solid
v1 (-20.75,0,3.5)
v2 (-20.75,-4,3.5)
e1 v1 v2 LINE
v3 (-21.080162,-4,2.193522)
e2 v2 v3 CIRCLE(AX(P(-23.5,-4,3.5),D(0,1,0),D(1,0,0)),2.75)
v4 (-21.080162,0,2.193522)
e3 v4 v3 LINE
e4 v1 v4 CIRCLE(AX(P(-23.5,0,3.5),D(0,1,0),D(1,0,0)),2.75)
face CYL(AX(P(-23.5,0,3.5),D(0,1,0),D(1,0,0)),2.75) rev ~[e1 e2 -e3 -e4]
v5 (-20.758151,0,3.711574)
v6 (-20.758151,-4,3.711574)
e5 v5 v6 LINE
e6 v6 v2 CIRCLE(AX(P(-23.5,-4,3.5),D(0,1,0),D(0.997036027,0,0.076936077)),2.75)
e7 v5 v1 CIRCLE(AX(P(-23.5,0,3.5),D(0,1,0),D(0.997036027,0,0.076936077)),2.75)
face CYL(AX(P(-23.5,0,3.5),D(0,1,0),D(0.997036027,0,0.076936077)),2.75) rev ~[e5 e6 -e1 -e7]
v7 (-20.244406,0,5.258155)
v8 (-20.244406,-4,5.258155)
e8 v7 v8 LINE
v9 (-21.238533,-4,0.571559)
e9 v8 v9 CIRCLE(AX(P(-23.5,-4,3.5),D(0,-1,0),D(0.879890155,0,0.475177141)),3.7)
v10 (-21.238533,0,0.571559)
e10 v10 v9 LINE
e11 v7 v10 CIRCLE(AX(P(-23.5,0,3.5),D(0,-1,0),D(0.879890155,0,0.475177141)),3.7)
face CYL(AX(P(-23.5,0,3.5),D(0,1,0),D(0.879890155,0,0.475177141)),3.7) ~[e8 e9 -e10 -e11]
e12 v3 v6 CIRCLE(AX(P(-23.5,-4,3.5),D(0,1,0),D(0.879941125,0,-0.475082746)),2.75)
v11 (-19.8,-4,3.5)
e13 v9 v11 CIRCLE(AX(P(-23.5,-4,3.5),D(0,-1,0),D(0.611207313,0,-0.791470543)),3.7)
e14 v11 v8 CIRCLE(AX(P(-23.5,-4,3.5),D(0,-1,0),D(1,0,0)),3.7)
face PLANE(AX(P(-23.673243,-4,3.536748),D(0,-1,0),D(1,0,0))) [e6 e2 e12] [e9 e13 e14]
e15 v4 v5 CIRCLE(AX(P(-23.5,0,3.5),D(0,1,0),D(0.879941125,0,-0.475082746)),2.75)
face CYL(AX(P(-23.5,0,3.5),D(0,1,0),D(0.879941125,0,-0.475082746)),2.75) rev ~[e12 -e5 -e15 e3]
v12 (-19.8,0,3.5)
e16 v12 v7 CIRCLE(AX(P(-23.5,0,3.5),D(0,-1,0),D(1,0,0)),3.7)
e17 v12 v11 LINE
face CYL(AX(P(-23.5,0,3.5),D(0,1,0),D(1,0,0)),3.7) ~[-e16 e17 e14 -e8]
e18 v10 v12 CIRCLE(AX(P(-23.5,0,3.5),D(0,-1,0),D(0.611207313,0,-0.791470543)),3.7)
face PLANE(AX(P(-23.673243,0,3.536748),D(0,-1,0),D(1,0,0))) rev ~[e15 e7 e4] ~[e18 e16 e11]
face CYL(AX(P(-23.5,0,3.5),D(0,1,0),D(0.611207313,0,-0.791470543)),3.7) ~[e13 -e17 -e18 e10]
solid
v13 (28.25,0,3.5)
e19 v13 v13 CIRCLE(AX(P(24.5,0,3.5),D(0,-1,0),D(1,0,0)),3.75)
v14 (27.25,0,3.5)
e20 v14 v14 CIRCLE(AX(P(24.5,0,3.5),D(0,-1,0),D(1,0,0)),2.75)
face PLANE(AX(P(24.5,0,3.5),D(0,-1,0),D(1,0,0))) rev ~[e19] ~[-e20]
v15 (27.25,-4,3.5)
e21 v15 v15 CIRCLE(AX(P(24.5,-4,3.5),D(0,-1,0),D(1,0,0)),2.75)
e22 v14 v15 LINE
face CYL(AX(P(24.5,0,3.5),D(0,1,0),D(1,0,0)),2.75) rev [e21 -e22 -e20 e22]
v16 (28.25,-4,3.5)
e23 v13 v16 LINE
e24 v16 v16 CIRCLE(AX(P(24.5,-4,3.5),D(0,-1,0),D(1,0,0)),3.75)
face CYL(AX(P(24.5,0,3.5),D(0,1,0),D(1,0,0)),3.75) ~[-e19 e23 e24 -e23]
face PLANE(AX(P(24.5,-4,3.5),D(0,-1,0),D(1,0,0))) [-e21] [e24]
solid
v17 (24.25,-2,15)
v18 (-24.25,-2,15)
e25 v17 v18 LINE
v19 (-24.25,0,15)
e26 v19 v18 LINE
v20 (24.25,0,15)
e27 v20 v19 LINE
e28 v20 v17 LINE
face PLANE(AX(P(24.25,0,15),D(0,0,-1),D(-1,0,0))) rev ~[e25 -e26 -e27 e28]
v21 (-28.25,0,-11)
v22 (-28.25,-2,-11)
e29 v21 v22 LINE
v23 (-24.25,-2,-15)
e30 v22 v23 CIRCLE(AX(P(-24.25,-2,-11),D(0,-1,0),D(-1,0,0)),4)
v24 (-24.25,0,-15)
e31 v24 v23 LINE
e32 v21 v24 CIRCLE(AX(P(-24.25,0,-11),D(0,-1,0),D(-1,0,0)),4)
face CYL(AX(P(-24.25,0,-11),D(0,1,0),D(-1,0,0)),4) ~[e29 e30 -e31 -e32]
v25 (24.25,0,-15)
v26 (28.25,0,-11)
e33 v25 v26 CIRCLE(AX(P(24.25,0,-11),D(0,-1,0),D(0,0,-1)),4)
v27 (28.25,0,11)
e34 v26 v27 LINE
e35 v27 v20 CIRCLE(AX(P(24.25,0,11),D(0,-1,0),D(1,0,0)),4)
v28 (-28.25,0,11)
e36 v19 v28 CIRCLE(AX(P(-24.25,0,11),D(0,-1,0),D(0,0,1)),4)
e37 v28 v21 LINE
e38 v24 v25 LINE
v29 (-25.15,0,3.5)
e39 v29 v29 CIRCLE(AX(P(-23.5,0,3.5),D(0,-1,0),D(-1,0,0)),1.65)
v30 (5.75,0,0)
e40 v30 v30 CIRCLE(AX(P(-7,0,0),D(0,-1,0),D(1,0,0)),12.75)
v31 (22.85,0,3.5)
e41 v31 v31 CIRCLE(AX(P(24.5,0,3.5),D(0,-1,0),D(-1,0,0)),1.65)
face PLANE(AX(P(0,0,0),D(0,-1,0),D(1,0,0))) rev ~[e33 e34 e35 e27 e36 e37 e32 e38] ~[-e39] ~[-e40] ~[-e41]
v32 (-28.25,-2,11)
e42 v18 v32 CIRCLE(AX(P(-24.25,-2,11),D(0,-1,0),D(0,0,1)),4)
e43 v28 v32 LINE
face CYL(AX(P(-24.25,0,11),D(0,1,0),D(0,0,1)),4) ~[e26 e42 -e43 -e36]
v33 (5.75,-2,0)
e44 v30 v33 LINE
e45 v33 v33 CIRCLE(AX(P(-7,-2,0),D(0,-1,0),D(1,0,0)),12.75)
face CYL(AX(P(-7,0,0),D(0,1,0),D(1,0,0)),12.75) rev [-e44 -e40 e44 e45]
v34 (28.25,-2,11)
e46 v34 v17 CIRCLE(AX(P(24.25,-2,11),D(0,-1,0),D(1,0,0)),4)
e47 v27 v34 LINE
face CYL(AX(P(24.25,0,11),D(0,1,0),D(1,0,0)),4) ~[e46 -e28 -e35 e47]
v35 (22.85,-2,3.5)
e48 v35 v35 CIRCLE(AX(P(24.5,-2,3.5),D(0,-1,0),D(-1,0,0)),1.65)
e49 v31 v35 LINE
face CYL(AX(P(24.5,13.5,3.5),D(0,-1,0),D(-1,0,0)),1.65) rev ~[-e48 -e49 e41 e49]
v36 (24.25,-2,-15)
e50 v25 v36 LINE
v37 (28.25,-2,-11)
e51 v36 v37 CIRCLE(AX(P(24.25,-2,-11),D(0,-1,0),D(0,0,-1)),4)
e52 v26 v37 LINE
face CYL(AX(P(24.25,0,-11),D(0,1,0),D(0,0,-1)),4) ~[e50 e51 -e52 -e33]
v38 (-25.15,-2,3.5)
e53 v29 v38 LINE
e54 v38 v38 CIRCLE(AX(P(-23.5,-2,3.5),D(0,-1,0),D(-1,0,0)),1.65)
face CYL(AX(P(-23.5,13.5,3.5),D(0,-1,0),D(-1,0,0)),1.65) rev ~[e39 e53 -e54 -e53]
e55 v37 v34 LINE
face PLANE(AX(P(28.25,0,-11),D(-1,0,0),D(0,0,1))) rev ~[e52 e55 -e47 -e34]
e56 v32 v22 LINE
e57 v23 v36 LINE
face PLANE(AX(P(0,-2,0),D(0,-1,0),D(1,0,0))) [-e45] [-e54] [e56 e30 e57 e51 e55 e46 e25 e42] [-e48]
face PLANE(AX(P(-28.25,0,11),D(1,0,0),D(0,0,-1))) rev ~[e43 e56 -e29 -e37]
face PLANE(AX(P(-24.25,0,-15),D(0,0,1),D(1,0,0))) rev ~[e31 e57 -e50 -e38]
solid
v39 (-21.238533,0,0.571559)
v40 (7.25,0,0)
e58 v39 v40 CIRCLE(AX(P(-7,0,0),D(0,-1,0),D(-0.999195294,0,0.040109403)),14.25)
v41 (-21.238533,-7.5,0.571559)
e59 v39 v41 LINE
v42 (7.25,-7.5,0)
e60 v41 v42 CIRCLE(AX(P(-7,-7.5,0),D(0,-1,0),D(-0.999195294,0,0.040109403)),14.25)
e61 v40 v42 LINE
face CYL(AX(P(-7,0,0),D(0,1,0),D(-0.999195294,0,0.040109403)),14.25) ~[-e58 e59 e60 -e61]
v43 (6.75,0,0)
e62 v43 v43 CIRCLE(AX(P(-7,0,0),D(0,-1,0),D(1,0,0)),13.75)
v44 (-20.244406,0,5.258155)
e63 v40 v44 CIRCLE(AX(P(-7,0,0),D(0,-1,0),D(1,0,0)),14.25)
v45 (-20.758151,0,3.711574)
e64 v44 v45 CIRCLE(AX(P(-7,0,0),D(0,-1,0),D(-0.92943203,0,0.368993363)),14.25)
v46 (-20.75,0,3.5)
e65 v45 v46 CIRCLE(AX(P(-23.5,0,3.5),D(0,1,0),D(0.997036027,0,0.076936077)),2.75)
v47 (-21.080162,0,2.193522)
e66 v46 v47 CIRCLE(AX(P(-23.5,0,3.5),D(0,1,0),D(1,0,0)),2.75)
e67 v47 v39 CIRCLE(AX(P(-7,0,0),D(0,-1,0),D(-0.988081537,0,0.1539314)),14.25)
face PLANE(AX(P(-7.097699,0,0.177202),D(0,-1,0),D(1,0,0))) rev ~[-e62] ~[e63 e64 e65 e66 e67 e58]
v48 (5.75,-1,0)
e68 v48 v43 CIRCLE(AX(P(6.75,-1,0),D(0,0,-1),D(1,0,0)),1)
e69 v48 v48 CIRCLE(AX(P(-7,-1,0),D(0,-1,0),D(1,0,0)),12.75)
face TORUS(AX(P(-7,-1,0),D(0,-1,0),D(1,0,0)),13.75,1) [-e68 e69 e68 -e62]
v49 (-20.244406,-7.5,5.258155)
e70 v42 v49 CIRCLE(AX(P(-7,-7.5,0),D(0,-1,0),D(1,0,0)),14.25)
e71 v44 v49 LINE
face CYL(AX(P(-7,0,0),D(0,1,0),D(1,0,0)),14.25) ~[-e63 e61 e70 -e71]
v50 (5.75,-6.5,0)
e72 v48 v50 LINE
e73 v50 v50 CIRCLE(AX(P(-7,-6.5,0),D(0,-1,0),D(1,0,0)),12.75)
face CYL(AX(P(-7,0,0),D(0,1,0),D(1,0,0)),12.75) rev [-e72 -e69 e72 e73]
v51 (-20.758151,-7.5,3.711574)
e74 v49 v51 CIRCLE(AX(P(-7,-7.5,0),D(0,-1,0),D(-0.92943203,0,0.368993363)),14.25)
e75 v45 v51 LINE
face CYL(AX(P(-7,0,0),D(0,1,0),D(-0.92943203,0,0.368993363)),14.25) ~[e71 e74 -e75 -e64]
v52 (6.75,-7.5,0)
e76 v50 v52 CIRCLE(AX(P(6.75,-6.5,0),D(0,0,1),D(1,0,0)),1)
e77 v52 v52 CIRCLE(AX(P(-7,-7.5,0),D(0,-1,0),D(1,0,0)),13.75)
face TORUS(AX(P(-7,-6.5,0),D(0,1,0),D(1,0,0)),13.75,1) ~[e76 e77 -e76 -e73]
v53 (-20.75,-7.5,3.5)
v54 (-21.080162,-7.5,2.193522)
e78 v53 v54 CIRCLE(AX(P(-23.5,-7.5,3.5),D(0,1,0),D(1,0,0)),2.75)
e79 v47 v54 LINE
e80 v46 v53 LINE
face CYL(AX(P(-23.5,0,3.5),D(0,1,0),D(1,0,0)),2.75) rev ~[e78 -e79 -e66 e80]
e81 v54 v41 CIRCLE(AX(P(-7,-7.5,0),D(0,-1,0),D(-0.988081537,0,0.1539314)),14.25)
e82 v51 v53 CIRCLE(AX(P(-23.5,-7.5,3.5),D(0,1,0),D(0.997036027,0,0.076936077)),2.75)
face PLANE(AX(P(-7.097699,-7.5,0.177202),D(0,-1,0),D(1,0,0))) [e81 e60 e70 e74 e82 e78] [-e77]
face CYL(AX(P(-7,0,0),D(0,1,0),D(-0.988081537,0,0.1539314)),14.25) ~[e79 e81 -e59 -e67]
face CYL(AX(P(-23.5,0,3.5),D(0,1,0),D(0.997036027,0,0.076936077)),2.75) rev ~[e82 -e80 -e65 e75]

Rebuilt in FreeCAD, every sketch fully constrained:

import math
import FreeCAD as App
import Part
import Sketcher


def edges_at(feature, points):
    """Names of the edges that pass closest to the given points."""
    edges = feature.Shape.Edges
    near = lambda p: min(range(len(edges)), key=lambda i: edges[i].distToShape(Part.Vertex(*p))[0])
    return sorted({f"Edge{near(p) + 1}" for p in points})

doc = App.newDocument("Part")
body = doc.addObject("PartDesign::Body", "Body")

# Sketch on XZ plane
sketch1 = body.newObject("Sketcher::SketchObject", "Sketch")
sketch1.AttachmentSupport = (doc.getObject("XZ_Plane"), [""])
sketch1.MapMode = "FlatFace"
sketch1.addGeometry([
    Part.ArcOfCircle(Part.Circle(App.Vector(-23.5, 3.5, 0), App.Vector(0, 0, 1), 3.7), math.radians(28), math.radians(308)),  # 0
    Part.ArcOfCircle(Part.Circle(App.Vector(-23.5, 3.5, 0), App.Vector(0, 0, 1), 3.7), math.radians(-52), math.radians(0)),  # 1
    Part.ArcOfCircle(Part.Circle(App.Vector(-23.5, 3.5, 0), App.Vector(0, 0, 1), 3.7), math.radians(0), math.radians(28)),  # 2
    Part.ArcOfCircle(Part.Circle(App.Vector(-23.5, 3.5, 0), App.Vector(0, 0, 1), 2.75), math.radians(4), math.radians(332)),  # 3
    Part.ArcOfCircle(Part.Circle(App.Vector(-23.5, 3.5, 0), App.Vector(0, 0, 1), 2.75), math.radians(0), math.radians(4.41)),  # 4
    Part.ArcOfCircle(Part.Circle(App.Vector(-23.5, 3.5, 0), App.Vector(0, 0, 1), 2.75), math.radians(-28), math.radians(0)),  # 5
], False)
sketch1.addConstraint([
    Sketcher.Constraint("Tangent", 0, 2, 1, 1),
    Sketcher.Constraint("Tangent", 1, 2, 2, 1),
    Sketcher.Constraint("Tangent", 2, 2, 0, 1),
    Sketcher.Constraint("Tangent", 3, 1, 4, 2),
    Sketcher.Constraint("Tangent", 4, 1, 5, 2),
    Sketcher.Constraint("Tangent", 5, 1, 3, 2),
    Sketcher.Constraint("Coincident", 3, 3, 0, 3),
    Sketcher.Constraint("Horizontal", 5, 3, 1, 2),
    Sketcher.Constraint("Horizontal", 1, 2, 4, 1),
    Sketcher.Constraint("Radius", 0, 3.7),
    Sketcher.Constraint("Radius", 3, 2.75),
    Sketcher.Constraint("DistanceX", 0, 3, -1, 1, 23.5),
    Sketcher.Constraint("DistanceY", -1, 1, 0, 3, 3.5),
    Sketcher.Constraint("DistanceY", -1, 1, 0, 2, 0.571559),
    Sketcher.Constraint("DistanceX", 3, 1, -1, 1, 20.758151),
    Sketcher.Constraint("DistanceX", 5, 1, -1, 1, 21.080162),
    Sketcher.Constraint("DistanceY", 3, 1, 2, 2, 1.546581),
])
pad1 = body.newObject("PartDesign::Pad", "Pad")
pad1.Profile = sketch1
pad1.Length = 4
body2 = doc.addObject("PartDesign::Body", "Body001")

# Sketch on XZ plane
sketch2 = body2.newObject("Sketcher::SketchObject", "Sketch001")
sketch2.AttachmentSupport = (doc.getObject("XZ_Plane001"), [""])
sketch2.MapMode = "FlatFace"
sketch2.addGeometry([
    Part.Circle(App.Vector(24.5, 3.5, 0), App.Vector(0, 0, 1), 3.8),
    Part.Circle(App.Vector(24.5, 3.5, 0), App.Vector(0, 0, 1), 2.8),
], False)
sketch2.addConstraint([
    Sketcher.Constraint("Coincident", 1, 3, 0, 3),
    Sketcher.Constraint("Diameter", 0, 7.5),
    Sketcher.Constraint("Diameter", 1, 5.5),
    Sketcher.Constraint("DistanceX", -1, 1, 0, 3, 24.5),
    Sketcher.Constraint("DistanceY", -1, 1, 0, 3, 3.5),
])
pad2 = body2.newObject("PartDesign::Pad", "Pad001")
pad2.Profile = sketch2
pad2.Length = 4
body3 = doc.addObject("PartDesign::Body", "Body002")

# Sketch on XZ plane
sketch3 = body3.newObject("Sketcher::SketchObject", "Sketch002")
sketch3.AttachmentSupport = (doc.getObject("XZ_Plane002"), [""])
sketch3.MapMode = "FlatFace"
sketch3.addGeometry([
    Part.ArcOfCircle(Part.Circle(App.Vector(-7, 0, 0), App.Vector(0, 0, 1), 14.25), math.radians(178), math.radians(360)),  # 0
    Part.ArcOfCircle(Part.Circle(App.Vector(-7, 0, 0), App.Vector(0, 0, 1), 14.25), math.radians(0), math.radians(158)),  # 1
    Part.ArcOfCircle(Part.Circle(App.Vector(-7, 0, 0), App.Vector(0, 0, 1), 14.25), math.radians(158.35), math.radians(164.9)),  # 2
    Part.ArcOfCircle(Part.Circle(App.Vector(-23.5, 3.5, 0), App.Vector(0, 0, 1), 2.75), math.radians(0), math.radians(4.41)),  # 3
    Part.ArcOfCircle(Part.Circle(App.Vector(-23.5, 3.5, 0), App.Vector(0, 0, 1), 2.75), math.radians(-28), math.radians(0)),  # 4
    Part.ArcOfCircle(Part.Circle(App.Vector(-7, 0, 0), App.Vector(0, 0, 1), 14.25), math.radians(171.15), math.radians(177.7)),  # 5
    Part.Circle(App.Vector(-7, 0, 0), App.Vector(0, 0, 1), 12.75),  # 6
], False)
sketch3.addConstraint([
    Sketcher.Constraint("Tangent", 0, 2, 1, 1),
    Sketcher.Constraint("Tangent", 1, 2, 2, 1),
    Sketcher.Constraint("Coincident", 2, 2, 3, 2),
    Sketcher.Constraint("Tangent", 3, 1, 4, 2),
    Sketcher.Constraint("Coincident", 4, 1, 5, 1),
    Sketcher.Constraint("Tangent", 5, 2, 0, 1),
    Sketcher.Constraint("Coincident", 2, 3, 0, 3),
    Sketcher.Constraint("Coincident", 6, 3, 0, 3),
    Sketcher.Constraint("Equal", 3, 4),
    Sketcher.Constraint("Equal", 2, 5),
    Sketcher.Constraint("PointOnObject", 0, 3, -1),
    Sketcher.Constraint("PointOnObject", 0, 2, -1),
    Sketcher.Constraint("Horizontal", 4, 3, 3, 1),
    Sketcher.Constraint("Diameter", 6, 25.5),
    Sketcher.Constraint("Radius", 0, 14.25),
    Sketcher.Constraint("Radius", 3, 2.75),
    Sketcher.Constraint("DistanceX", 0, 3, -1, 1, 7.0),
    Sketcher.Constraint("DistanceX", 3, 3, -1, 1, 23.5),
    Sketcher.Constraint("DistanceY", -1, 1, 3, 3, 3.5),
    Sketcher.Constraint("DistanceY", -1, 1, 5, 2, 0.571559),
    Sketcher.Constraint("DistanceY", 2, 2, 1, 2, 1.546581),
])
pad3 = body3.newObject("PartDesign::Pad", "Pad002")
pad3.Profile = sketch3
pad3.Length = 7.5
doc.recompute()

fillet = body3.newObject("PartDesign::Fillet", "Fillet")
fillet.Base = (pad3, edges_at(pad3, [(-19.75, -7.5, 0), (-19.75, 0, 0)]))
fillet.Radius = 1
body4 = doc.addObject("PartDesign::Body", "Body003")

# Sketch on XZ plane
sketch4 = body4.newObject("Sketcher::SketchObject", "Sketch003")
sketch4.AttachmentSupport = (doc.getObject("XZ_Plane003"), [""])
sketch4.MapMode = "FlatFace"
sketch4.addGeometry([
    Part.LineSegment(App.Vector(-28.2, 11, 0), App.Vector(-28.2, -11, 0)),  # 0
    Part.ArcOfCircle(Part.Circle(App.Vector(-24.2, -11, 0), App.Vector(0, 0, 1), 4), math.radians(180), math.radians(270)),  # 1
    Part.LineSegment(App.Vector(-24.2, -15, 0), App.Vector(24.2, -15, 0)),  # 2
    Part.ArcOfCircle(Part.Circle(App.Vector(24.2, -11, 0), App.Vector(0, 0, 1), 4), math.radians(-90), math.radians(0)),  # 3
    Part.LineSegment(App.Vector(28.2, -11, 0), App.Vector(28.2, 11, 0)),  # 4
    Part.ArcOfCircle(Part.Circle(App.Vector(24.2, 11, 0), App.Vector(0, 0, 1), 4), math.radians(0), math.radians(90)),  # 5
    Part.LineSegment(App.Vector(24.2, 15, 0), App.Vector(-24.2, 15, 0)),  # 6
    Part.ArcOfCircle(Part.Circle(App.Vector(-24.2, 11, 0), App.Vector(0, 0, 1), 4), math.radians(90), math.radians(180)),  # 7
    Part.Circle(App.Vector(-7, 0, 0), App.Vector(0, 0, 1), 12.8),  # 8
], False)
sketch4.addConstraint([
    Sketcher.Constraint("Tangent", 0, 2, 1, 1),
    Sketcher.Constraint("Tangent", 1, 2, 2, 1),
    Sketcher.Constraint("Tangent", 2, 2, 3, 1),
    Sketcher.Constraint("Tangent", 3, 2, 4, 1),
    Sketcher.Constraint("Tangent", 4, 2, 5, 1),
    Sketcher.Constraint("Tangent", 5, 2, 6, 1),
    Sketcher.Constraint("Tangent", 6, 2, 7, 1),
    Sketcher.Constraint("Tangent", 7, 2, 0, 1),
    Sketcher.Constraint("Vertical", 0),
    Sketcher.Constraint("Horizontal", 2),
    Sketcher.Constraint("Vertical", 4),
    Sketcher.Constraint("Horizontal", 6),
    Sketcher.Constraint("Equal", 1, 3),
    Sketcher.Constraint("Equal", 3, 5),
    Sketcher.Constraint("Equal", 5, 7),
    Sketcher.Constraint("Symmetric", 1, 3, 5, 3, -1, 1),
    Sketcher.Constraint("PointOnObject", 8, 3, -1),
    Sketcher.Constraint("Radius", 1, 4.0),
    Sketcher.Constraint("Diameter", 8, 25.5),
    Sketcher.Constraint("DistanceY", 0, 2, 0, 1, 22.0),
    Sketcher.Constraint("DistanceX", 2, 1, 2, 2, 48.5),
    Sketcher.Constraint("DistanceX", 8, 3, -1, 1, 7.0),
])
pad4 = body4.newObject("PartDesign::Pad", "Pad003")
pad4.Profile = sketch4
pad4.Length = 2

# Sketch on XZ plane
sketch5 = body4.newObject("Sketcher::SketchObject", "Sketch004")
sketch5.AttachmentSupport = (doc.getObject("XZ_Plane003"), [""])
sketch5.MapMode = "FlatFace"
sketch5.addGeometry([
    Part.Circle(App.Vector(24.5, 3.5, 0), App.Vector(0, 0, 1), 1.6),
    Part.Circle(App.Vector(-23.5, 3.5, 0), App.Vector(0, 0, 1), 1.6),
], False)
sketch5.addConstraint([
    Sketcher.Constraint("Equal", 0, 1),
    Sketcher.Constraint("Horizontal", 0, 3, 1, 3),
    Sketcher.Constraint("Diameter", 0, 3.3),
    Sketcher.Constraint("DistanceX", 1, 3, 0, 3, 48.0),
    Sketcher.Constraint("DistanceX", -1, 1, 0, 3, 24.5),
    Sketcher.Constraint("DistanceY", -1, 1, 0, 3, 3.5),
])
doc.recompute()
hole = body4.newObject("PartDesign::Hole", "Hole")
hole.Profile = sketch5
hole.ThreadType = "None"
hole.Diameter = 3.3
hole.DepthType = "Dimension"
hole.Depth = 13.5
hole.DrillPoint = "Angled"
hole.DrillPointAngle = 118
hole.Reversed = True

doc.recompute()
